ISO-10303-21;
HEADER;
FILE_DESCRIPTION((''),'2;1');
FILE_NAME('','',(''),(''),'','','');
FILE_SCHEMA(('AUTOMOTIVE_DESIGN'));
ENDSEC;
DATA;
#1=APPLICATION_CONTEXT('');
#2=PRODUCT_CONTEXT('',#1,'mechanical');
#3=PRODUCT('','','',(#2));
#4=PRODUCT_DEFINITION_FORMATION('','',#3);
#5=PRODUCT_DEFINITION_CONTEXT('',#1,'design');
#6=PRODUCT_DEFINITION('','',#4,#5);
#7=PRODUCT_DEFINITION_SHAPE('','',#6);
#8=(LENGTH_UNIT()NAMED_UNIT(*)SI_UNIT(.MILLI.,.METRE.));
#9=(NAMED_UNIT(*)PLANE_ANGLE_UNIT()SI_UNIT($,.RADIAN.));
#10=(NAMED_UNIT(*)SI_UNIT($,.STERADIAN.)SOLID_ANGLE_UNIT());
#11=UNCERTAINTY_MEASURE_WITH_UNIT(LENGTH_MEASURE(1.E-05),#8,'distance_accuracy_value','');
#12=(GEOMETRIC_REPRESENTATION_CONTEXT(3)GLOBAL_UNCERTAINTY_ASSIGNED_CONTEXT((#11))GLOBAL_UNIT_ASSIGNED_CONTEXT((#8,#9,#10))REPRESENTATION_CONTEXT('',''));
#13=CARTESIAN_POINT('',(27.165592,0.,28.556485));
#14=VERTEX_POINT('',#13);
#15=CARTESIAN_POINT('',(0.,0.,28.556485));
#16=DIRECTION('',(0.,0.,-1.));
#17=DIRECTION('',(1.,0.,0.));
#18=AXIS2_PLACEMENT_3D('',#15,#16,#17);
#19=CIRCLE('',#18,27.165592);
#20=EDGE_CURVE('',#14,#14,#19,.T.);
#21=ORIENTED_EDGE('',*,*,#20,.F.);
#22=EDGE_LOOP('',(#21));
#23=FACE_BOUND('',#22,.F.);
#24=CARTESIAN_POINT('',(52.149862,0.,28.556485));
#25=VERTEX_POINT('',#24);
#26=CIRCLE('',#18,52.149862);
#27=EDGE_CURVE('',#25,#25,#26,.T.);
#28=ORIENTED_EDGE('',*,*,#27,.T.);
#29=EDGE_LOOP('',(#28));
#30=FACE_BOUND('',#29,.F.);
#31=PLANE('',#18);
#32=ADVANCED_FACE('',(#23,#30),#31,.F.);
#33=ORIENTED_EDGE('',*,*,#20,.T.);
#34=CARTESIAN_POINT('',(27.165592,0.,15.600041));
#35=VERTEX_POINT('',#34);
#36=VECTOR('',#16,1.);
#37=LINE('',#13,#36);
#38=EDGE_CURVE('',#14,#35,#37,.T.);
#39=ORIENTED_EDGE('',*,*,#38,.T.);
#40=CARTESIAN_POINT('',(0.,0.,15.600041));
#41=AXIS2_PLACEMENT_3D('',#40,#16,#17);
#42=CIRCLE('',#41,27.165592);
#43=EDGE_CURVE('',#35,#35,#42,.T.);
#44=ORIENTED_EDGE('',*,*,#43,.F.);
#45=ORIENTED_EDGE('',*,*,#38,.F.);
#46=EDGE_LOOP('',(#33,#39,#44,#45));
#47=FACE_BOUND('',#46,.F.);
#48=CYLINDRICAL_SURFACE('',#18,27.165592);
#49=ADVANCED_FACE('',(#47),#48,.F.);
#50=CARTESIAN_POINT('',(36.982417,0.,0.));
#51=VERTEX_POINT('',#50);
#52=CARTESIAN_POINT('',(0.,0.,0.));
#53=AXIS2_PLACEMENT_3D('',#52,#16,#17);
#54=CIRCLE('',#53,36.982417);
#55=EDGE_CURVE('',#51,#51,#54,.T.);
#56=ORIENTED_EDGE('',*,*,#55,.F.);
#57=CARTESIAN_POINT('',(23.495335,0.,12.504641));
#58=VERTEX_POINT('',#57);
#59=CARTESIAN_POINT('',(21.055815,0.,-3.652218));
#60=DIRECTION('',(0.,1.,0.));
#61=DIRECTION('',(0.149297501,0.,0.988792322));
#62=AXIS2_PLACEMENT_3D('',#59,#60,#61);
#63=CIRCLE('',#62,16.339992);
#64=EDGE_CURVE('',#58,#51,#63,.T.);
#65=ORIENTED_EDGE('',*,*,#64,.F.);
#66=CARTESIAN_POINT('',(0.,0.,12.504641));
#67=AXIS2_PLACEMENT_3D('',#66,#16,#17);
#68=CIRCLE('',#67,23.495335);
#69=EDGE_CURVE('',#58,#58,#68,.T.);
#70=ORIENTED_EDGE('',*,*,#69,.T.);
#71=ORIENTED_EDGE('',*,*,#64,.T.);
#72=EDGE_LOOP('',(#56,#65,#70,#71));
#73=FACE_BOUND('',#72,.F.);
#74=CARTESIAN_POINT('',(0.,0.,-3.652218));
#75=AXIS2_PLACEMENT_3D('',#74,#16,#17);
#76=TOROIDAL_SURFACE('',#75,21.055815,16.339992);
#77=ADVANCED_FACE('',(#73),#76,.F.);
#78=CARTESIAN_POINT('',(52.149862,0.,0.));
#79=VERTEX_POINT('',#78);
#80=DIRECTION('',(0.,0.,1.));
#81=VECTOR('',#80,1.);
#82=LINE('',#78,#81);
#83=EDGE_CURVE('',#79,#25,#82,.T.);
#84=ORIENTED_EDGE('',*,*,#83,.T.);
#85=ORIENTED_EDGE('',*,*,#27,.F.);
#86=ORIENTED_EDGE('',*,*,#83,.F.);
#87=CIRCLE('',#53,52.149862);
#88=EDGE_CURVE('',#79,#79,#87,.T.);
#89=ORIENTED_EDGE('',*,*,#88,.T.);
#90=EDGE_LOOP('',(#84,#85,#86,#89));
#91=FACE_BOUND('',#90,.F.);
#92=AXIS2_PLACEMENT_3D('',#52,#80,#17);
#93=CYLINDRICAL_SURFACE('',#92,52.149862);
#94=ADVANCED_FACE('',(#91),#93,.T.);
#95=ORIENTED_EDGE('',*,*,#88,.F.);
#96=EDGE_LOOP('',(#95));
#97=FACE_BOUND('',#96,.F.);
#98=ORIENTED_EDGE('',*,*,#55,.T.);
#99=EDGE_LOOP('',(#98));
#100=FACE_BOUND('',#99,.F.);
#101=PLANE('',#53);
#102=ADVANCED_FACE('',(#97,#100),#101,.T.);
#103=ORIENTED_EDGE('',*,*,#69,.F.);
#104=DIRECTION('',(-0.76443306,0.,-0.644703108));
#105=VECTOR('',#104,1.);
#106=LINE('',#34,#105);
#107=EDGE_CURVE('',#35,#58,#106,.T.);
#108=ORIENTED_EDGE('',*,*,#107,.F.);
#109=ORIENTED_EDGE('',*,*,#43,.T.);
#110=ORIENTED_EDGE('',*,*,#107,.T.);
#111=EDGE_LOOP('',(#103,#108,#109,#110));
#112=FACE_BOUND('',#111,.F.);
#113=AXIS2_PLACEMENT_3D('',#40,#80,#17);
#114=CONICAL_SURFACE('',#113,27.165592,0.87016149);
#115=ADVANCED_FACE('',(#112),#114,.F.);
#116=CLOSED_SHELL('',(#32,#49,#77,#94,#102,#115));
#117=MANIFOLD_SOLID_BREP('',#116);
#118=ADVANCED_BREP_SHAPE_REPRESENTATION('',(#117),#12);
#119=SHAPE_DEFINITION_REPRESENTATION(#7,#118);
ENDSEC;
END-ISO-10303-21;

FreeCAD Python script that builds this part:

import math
import FreeCAD as App
import Part
import Sketcher

V = App.Vector
Q = App.Units.Quantity

doc = App.newDocument("Part")
body = doc.addObject("PartDesign::Body", "Body")

# Sketch on XZ plane
sketch1 = doc.addObject("Sketcher::SketchObject", "Sketch")
body.addObject(sketch1)
sketch1.AttachmentSupport = (doc.XZ_Plane, [""])
sketch1.MapMode = "FlatFace"
sketch1.addGeometry([
    Part.LineSegment(V(52.1, 28.6, 0), V(27.2, 28.6, 0)),  # 0
    Part.LineSegment(V(27.2, 28.6, 0), V(27.2, 15.6, 0)),  # 1
    Part.LineSegment(V(27.2, 15.6, 0), V(23.5, 12.5, 0)),  # 2
    Part.ArcOfCircle(Part.Circle(V(21.1, -3.7, 0), V(0, 0, 1), 16.3), math.radians(13), math.radians(81)),  # 3
    Part.LineSegment(V(37, 0, 0), V(52.1, 0, 0)),  # 4
    Part.LineSegment(V(52.1, 0, 0), V(52.1, 28.6, 0)),  # 5
], False)
sketch1.addConstraint([
    Sketcher.Constraint("Coincident", 0, 2, 1, 1),
    Sketcher.Constraint("Coincident", 1, 2, 2, 1),
    Sketcher.Constraint("Coincident", 2, 2, 3, 2),
    Sketcher.Constraint("Coincident", 3, 1, 4, 1),
    Sketcher.Constraint("Coincident", 4, 2, 5, 1),
    Sketcher.Constraint("Coincident", 5, 2, 0, 1),
    Sketcher.Constraint("Horizontal", 0),
    Sketcher.Constraint("Vertical", 1),
    Sketcher.Constraint("Horizontal", 4),
    Sketcher.Constraint("Vertical", 5),
    Sketcher.Constraint("PointOnObject", 3, 1, -1),
    Sketcher.Constraint("Radius", 3, Q("16.339992 mm")),
    Sketcher.Constraint("DistanceX", 0, 2, 0, 1, Q("24.98427 mm")),
    Sketcher.Constraint("DistanceY", 2, 2, 1, 2, Q("3.0954 mm")),
    Sketcher.Constraint("Distance", 2, Q("4.80128 mm")),
    Sketcher.Constraint("DistanceX", 4, 1, 4, 2, Q("15.167445 mm")),
    Sketcher.Constraint("DistanceY", 1, 2, 1, 1, Q("12.956444 mm")),
    Sketcher.Constraint("DistanceY", 5, 1, 5, 2, Q("28.556485 mm")),
    Sketcher.Constraint("DistanceX", -1, 1, 0, 2, Q("27.165592 mm")),
])
revolution = doc.addObject("PartDesign::Revolution", "Revolution")
body.addObject(revolution)
revolution.Profile = sketch1
revolution.ReferenceAxis = (sketch1, ["V_Axis"])
revolution.Angle = 360

doc.recompute()
